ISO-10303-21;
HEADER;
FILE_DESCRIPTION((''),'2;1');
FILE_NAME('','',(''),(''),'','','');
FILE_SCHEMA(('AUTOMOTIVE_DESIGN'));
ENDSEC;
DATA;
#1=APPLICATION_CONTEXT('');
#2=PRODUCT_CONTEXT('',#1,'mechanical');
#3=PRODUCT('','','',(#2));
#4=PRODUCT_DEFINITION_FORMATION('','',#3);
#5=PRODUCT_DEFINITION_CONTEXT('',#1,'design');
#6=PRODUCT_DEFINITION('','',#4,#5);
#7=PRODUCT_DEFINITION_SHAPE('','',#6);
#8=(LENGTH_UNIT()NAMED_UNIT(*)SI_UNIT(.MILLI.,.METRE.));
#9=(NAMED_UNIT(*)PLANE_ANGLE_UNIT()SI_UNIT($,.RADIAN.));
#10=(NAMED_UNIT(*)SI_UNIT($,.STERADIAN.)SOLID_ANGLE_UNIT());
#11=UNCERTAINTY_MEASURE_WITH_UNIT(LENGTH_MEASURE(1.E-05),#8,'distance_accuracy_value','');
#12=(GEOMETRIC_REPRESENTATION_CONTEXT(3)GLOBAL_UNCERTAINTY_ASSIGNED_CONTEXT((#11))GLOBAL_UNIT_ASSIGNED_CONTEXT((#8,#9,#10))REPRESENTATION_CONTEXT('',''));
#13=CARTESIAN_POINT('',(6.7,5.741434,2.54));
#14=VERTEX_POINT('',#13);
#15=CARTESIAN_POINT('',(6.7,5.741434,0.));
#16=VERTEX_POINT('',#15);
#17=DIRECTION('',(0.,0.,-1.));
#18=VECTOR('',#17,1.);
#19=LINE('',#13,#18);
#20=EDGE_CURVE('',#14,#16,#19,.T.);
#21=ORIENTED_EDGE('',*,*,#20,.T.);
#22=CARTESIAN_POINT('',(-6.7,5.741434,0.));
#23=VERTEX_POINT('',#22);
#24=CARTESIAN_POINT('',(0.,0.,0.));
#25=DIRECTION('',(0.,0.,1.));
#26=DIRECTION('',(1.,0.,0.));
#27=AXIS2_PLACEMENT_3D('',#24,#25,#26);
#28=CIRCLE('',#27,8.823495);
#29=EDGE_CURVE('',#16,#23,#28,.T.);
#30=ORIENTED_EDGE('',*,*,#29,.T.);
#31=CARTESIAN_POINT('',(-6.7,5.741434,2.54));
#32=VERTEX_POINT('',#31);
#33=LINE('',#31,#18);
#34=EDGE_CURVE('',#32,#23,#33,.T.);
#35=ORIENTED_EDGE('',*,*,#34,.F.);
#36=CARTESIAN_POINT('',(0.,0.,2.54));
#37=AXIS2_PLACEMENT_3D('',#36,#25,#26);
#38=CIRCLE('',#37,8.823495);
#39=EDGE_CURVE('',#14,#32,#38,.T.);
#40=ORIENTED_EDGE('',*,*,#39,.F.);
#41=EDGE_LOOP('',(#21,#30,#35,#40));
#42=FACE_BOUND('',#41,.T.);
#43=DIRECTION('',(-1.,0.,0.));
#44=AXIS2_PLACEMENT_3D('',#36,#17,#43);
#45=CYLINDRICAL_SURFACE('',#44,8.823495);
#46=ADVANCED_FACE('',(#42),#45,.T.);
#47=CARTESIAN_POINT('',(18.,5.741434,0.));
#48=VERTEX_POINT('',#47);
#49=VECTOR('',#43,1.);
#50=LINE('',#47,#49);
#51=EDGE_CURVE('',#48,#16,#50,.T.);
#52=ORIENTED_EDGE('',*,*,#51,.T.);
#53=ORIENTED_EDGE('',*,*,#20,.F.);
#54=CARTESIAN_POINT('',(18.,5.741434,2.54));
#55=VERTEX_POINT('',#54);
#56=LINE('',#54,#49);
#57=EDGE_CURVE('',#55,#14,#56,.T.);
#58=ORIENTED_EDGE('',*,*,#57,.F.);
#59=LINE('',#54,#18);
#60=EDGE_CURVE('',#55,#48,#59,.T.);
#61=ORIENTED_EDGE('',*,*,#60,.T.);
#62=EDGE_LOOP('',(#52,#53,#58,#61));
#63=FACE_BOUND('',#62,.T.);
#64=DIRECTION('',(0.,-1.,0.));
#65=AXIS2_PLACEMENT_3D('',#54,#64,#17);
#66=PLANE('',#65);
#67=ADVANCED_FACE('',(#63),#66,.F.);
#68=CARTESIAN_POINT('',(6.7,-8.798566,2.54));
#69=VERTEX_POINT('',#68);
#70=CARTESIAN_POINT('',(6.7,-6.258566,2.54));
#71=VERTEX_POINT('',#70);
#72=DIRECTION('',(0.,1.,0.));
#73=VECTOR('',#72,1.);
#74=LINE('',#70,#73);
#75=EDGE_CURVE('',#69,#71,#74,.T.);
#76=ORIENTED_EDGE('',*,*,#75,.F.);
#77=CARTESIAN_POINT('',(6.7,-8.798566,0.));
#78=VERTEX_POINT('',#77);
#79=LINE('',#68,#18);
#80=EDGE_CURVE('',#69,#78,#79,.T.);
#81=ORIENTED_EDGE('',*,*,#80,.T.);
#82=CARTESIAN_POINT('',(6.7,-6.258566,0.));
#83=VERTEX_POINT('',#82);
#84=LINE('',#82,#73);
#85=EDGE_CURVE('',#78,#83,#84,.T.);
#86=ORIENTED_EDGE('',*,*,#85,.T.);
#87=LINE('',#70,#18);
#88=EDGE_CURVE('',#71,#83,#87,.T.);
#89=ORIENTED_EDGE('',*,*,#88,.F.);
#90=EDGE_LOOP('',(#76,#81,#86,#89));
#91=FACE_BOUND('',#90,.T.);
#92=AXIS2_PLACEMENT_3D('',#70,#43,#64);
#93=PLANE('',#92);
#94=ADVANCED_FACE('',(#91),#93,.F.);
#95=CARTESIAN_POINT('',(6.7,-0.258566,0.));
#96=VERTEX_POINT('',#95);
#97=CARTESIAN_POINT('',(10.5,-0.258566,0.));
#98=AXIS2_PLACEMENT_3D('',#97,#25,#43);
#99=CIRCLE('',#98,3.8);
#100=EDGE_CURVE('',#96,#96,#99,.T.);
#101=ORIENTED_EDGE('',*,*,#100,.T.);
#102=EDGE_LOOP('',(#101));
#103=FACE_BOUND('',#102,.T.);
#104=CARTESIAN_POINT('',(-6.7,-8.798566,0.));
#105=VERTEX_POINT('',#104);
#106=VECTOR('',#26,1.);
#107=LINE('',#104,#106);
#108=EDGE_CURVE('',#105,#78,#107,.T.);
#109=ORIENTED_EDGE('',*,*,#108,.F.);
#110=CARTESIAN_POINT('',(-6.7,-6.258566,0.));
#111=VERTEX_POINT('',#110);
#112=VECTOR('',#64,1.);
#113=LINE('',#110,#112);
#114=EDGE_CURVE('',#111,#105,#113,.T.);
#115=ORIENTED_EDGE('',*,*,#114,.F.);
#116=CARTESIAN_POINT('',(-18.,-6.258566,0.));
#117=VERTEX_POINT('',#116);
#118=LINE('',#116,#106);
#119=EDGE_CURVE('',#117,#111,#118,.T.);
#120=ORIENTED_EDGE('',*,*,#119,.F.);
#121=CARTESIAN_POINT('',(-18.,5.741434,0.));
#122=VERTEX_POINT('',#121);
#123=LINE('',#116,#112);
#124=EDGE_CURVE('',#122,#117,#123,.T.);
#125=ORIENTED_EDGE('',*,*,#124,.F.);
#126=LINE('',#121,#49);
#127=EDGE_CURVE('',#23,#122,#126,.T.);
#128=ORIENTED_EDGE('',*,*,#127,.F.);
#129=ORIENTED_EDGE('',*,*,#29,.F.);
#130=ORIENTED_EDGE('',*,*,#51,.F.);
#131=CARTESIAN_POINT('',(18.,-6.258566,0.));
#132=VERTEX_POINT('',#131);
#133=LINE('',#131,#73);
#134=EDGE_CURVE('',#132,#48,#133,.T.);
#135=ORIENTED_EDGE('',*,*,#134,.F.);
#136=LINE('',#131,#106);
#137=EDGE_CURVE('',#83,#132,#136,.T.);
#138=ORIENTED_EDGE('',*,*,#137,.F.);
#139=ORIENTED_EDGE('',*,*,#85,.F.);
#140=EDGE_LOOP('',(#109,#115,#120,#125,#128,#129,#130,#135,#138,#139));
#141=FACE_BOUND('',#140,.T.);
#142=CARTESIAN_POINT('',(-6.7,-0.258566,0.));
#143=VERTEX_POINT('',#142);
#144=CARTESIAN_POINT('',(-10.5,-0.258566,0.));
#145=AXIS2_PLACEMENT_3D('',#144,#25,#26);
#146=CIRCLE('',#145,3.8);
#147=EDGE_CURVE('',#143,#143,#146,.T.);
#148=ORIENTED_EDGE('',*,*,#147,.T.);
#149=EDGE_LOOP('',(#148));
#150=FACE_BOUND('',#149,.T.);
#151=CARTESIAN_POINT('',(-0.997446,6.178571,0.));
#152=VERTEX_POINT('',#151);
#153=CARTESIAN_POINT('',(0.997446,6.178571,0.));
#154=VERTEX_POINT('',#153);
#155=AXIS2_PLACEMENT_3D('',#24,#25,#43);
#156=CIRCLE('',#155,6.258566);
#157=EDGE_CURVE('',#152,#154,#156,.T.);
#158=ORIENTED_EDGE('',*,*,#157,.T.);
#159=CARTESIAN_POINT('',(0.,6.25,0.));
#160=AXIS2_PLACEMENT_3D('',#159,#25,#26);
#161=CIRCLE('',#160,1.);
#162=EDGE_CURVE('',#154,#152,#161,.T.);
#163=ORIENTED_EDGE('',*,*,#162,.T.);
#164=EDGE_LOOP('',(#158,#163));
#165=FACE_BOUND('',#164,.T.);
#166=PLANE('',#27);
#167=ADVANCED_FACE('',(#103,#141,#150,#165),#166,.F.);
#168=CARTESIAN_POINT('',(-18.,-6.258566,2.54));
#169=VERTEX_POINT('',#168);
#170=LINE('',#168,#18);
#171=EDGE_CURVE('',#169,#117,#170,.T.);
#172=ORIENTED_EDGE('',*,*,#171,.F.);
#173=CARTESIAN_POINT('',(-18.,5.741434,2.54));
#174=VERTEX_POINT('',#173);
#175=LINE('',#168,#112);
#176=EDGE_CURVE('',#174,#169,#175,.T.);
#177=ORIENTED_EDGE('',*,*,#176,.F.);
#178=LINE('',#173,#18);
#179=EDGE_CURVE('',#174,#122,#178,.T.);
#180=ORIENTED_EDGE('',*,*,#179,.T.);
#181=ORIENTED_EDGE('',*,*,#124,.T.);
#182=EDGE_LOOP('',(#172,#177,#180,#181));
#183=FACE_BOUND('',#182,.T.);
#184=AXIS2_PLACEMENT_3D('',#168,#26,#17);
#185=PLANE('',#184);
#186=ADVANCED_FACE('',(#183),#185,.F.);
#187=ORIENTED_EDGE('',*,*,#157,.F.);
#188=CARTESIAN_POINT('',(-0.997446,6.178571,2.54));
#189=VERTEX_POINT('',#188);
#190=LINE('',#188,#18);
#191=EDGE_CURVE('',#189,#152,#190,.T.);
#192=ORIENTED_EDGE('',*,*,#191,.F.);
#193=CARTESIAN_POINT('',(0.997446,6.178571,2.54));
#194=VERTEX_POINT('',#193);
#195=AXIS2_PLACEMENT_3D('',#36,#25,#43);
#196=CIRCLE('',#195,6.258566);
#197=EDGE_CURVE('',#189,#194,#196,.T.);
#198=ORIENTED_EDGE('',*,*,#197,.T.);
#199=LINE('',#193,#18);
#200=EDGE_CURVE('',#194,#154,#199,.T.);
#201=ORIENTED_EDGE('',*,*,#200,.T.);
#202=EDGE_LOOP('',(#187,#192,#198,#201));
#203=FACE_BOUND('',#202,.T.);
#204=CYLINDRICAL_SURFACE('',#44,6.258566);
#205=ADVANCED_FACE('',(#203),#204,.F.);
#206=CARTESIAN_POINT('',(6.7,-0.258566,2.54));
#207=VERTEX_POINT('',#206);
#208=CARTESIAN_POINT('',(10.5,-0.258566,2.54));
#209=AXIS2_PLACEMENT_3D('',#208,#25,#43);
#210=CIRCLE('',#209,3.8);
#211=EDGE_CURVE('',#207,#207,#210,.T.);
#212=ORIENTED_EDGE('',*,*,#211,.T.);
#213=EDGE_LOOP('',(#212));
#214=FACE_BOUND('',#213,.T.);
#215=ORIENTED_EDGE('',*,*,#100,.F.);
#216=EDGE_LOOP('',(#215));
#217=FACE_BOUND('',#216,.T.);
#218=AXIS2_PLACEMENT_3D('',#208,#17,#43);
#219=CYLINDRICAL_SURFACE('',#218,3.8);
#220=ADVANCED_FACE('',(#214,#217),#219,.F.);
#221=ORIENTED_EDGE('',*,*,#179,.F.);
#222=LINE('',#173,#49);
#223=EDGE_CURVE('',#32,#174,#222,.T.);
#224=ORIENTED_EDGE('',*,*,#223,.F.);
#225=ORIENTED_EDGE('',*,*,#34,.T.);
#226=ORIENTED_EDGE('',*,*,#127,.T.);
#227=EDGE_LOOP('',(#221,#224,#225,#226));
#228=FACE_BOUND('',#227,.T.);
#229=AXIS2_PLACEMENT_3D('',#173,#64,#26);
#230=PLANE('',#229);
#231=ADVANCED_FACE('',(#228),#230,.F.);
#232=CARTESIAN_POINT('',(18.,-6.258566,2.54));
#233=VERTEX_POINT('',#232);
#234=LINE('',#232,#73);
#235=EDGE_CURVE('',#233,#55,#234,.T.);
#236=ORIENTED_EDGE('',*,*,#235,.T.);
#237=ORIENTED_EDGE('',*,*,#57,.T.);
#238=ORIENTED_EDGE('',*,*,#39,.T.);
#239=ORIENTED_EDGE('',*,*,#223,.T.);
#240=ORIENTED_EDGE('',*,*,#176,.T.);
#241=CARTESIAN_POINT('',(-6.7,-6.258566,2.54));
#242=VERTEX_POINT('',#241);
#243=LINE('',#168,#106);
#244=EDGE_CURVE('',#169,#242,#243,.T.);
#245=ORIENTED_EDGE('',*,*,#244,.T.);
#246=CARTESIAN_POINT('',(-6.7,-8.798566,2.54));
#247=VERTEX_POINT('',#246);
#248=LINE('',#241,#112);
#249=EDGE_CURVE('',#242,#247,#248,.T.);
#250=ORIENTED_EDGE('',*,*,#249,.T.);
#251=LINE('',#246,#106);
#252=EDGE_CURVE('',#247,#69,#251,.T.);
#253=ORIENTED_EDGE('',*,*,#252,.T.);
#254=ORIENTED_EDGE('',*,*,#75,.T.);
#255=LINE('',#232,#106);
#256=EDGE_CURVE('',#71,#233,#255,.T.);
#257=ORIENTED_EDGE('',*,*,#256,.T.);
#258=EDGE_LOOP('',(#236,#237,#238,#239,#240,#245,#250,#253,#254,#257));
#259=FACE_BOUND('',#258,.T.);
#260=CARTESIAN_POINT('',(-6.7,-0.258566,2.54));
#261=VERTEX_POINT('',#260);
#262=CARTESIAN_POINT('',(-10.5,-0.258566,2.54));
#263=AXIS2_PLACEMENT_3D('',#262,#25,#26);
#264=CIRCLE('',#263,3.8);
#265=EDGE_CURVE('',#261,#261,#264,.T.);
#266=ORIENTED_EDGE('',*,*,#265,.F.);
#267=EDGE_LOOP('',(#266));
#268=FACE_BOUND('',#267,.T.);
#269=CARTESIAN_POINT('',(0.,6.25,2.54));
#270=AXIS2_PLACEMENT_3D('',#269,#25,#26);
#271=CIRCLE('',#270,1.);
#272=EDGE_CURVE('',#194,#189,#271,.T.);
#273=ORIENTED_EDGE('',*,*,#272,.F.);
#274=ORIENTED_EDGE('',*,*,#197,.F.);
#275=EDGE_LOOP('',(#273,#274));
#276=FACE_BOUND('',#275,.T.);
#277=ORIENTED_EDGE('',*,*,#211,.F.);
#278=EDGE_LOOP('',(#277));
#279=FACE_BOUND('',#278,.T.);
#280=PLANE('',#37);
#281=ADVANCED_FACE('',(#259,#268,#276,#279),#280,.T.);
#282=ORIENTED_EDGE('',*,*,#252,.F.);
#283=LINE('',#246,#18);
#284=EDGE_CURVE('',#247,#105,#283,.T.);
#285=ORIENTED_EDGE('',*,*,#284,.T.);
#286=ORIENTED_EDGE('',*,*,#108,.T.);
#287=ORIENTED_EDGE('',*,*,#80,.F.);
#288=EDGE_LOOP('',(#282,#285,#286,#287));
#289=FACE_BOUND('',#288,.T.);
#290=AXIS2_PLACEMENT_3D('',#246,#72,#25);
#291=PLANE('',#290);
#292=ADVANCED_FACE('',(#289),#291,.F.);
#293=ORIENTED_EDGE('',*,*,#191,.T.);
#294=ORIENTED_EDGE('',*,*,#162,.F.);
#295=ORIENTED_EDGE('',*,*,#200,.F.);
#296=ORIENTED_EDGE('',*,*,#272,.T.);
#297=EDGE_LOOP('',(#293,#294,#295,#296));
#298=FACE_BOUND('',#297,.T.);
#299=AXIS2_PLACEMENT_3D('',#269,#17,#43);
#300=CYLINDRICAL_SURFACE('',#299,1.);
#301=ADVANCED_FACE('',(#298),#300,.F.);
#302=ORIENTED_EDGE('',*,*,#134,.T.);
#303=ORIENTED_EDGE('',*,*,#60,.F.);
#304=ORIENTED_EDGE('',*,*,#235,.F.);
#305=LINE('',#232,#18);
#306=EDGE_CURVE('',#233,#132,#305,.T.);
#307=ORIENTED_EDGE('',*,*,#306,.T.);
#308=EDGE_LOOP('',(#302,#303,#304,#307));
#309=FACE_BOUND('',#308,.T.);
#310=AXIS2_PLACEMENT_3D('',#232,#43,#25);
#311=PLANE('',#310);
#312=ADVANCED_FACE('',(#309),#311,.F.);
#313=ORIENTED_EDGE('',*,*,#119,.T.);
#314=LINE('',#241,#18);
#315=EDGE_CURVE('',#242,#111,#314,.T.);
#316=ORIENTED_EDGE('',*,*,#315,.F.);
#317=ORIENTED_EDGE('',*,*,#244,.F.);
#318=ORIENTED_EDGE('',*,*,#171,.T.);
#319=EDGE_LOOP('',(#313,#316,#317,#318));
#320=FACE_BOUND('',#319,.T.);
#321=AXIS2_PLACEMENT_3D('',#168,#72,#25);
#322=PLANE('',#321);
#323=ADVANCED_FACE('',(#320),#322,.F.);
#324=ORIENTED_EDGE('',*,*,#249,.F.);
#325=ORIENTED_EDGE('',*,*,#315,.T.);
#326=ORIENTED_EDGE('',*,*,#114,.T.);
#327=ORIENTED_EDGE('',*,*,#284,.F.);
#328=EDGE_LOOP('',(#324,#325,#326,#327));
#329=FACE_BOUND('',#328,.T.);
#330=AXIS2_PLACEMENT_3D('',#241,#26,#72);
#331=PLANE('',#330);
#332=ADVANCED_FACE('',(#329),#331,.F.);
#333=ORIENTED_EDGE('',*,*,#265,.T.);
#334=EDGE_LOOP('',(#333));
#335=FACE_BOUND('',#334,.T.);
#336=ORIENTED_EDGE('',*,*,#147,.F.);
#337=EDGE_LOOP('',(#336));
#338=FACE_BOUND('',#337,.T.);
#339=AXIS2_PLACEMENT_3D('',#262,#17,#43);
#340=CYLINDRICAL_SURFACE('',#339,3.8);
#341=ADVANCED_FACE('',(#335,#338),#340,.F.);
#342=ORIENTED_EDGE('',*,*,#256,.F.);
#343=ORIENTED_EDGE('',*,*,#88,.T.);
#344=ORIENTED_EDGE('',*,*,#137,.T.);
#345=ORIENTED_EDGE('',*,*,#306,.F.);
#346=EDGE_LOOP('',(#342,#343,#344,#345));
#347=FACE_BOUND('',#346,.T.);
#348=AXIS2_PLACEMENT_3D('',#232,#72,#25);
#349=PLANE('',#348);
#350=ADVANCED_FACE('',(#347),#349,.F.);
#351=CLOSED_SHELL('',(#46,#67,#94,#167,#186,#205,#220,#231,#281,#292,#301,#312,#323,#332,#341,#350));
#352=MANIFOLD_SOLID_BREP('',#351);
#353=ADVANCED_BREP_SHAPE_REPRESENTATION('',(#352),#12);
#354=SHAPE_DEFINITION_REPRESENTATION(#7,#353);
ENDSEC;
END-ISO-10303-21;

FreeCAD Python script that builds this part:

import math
import FreeCAD as App
import Part
import Sketcher

V = App.Vector

doc = App.newDocument("Part")
params = doc.addObject("Spreadsheet::Sheet", "Params")
for row, (alias, value) in enumerate([
    ("sketch1_radius", "1 mm"),
    ("sketch1_diameter", "7.6 mm"),
    ("sketch1_height", "12 mm"),
    ("sketch1_width", "11.3 mm"),
    ("sketch1_width2", "13.4 mm"),
    ("pad1_length", "2.54 mm"),
], start=1):
    params.set(f"A{row}", alias)
    params.set(f"B{row}", "=" + value)
    params.setAlias(f"B{row}", alias)

body = doc.addObject("PartDesign::Body", "Body")

# Sketch on XY plane
sketch1 = doc.addObject("Sketcher::SketchObject", "Sketch")
body.addObject(sketch1)
sketch1.AttachmentSupport = (doc.XY_Plane, [""])
sketch1.MapMode = "FlatFace"
sketch1.addGeometry(Part.LineSegment(V(-18, 5.741434, 0), V(-18, -6.258566, 0)), False)
sketch1.addGeometry(Part.LineSegment(V(-18, -6.258566, 0), V(-6.7, -6.258566, 0)), False)
sketch1.addGeometry(Part.LineSegment(V(-6.7, -6.258566, 0), V(-6.7, -8.798566, 0)), False)
sketch1.addGeometry(Part.LineSegment(V(-6.7, -8.798566, 0), V(6.7, -8.798566, 0)), False)
sketch1.addGeometry(Part.LineSegment(V(6.7, -8.798566, 0), V(6.7, -6.258566, 0)), False)
sketch1.addGeometry(Part.LineSegment(V(6.7, -6.258566, 0), V(18, -6.258566, 0)), False)
sketch1.addGeometry(Part.LineSegment(V(18, -6.258566, 0), V(18, 5.741434, 0)), False)
sketch1.addGeometry(Part.LineSegment(V(18, 5.741434, 0), V(6.7, 5.741434, 0)), False)
sketch1.addGeometry(Part.ArcOfCircle(Part.Circle(V(0, 0, 0), V(0, 0, 1), 8.823495), math.radians(40.59428), math.radians(139.40572)), False)
sketch1.addGeometry(Part.LineSegment(V(-6.7, 5.741434, 0), V(-18, 5.741434, 0)), False)
sketch1.addGeometry(Part.Circle(V(10.5, -0.258566, 0), V(0, 0, 1), 3.8), False)
sketch1.addGeometry(Part.Circle(V(-10.5, -0.258566, 0), V(0, 0, 1), 3.8), False)
sketch1.addGeometry(Part.ArcOfCircle(Part.Circle(V(0, 0, 0), V(0, 0, 1), 6.258566), math.radians(99.170499), math.radians(440.829501)), False)
sketch1.addGeometry(Part.ArcOfCircle(Part.Circle(V(0, 6.25, 0), V(0, 0, 1), 1), math.radians(-4.096044), math.radians(184.096044)), False)
sketch1.addConstraint(Sketcher.Constraint("Coincident", 0, 2, 1, 1))
sketch1.addConstraint(Sketcher.Constraint("Coincident", 1, 2, 2, 1))
sketch1.addConstraint(Sketcher.Constraint("Coincident", 2, 2, 3, 1))
sketch1.addConstraint(Sketcher.Constraint("Coincident", 3, 2, 4, 1))
sketch1.addConstraint(Sketcher.Constraint("Coincident", 4, 2, 5, 1))
sketch1.addConstraint(Sketcher.Constraint("Coincident", 5, 2, 6, 1))
sketch1.addConstraint(Sketcher.Constraint("Coincident", 6, 2, 7, 1))
sketch1.addConstraint(Sketcher.Constraint("Coincident", 7, 2, 8, 1))
sketch1.addConstraint(Sketcher.Constraint("Coincident", 8, 2, 9, 1))
sketch1.addConstraint(Sketcher.Constraint("Coincident", 9, 2, 0, 1))
sketch1.addConstraint(Sketcher.Constraint("Coincident", 12, 1, 13, 2))
sketch1.addConstraint(Sketcher.Constraint("Coincident", 13, 1, 12, 2))
sketch1.addConstraint(Sketcher.Constraint("Vertical", 0))
sketch1.addConstraint(Sketcher.Constraint("Horizontal", 1))
sketch1.addConstraint(Sketcher.Constraint("Vertical", 2))
sketch1.addConstraint(Sketcher.Constraint("Horizontal", 3))
sketch1.addConstraint(Sketcher.Constraint("Vertical", 4))
sketch1.addConstraint(Sketcher.Constraint("Horizontal", 5))
sketch1.addConstraint(Sketcher.Constraint("Vertical", 6))
sketch1.addConstraint(Sketcher.Constraint("Horizontal", 7))
sketch1.addConstraint(Sketcher.Constraint("Horizontal", 9))
sketch1.addConstraint(Sketcher.Constraint("Coincident", 8, 3, -1, 1))
sketch1.addConstraint(Sketcher.Constraint("Coincident", 12, 3, -1, 1))
sketch1.addConstraint(Sketcher.Constraint("Equal", 10, 11))
sketch1.addConstraint(Sketcher.Constraint("Symmetric", 10, 3, 11, 3, -2))
sketch1.addConstraint(Sketcher.Constraint("Symmetric", 1, 2, 4, 2, -2))
sketch1.addConstraint(Sketcher.Constraint("Symmetric", 6, 2, 9, 2, -2))
sketch1.addConstraint(Sketcher.Constraint("PointOnObject", 13, 3, -2))
sketch1.addConstraint(Sketcher.Constraint("Vertical", 4, 2, 7, 2))
sketch1.addConstraint(Sketcher.Constraint("Radius", 13, 1.0))
sketch1.addConstraint(Sketcher.Constraint("Diameter", 10, 7.6))
sketch1.addConstraint(Sketcher.Constraint("DistanceY", 0, 2, 0, 1, 12.0))
sketch1.addConstraint(Sketcher.Constraint("DistanceX", 1, 1, 1, 2, 11.3))
sketch1.addConstraint(Sketcher.Constraint("DistanceX", 3, 1, 3, 2, 13.4))
sketch1.addConstraint(Sketcher.Constraint("DistanceX", 11, 3, 10, 3, 21.0))
sketch1.addConstraint(Sketcher.Constraint("DistanceY", 0, 2, 11, 3, 6.0))
sketch1.addConstraint(Sketcher.Constraint("DistanceY", 2, 2, 2, 1, 2.54))
sketch1.addConstraint(Sketcher.Constraint("DistanceY", -1, 1, 13, 3, 6.25))
sketch1.addConstraint(Sketcher.Constraint("Radius", 8, 8.823495))
sketch1.addConstraint(Sketcher.Constraint("Radius", 12, 6.258566))
sketch1.setExpression("Constraints[29]", "Params.sketch1_radius")
sketch1.setExpression("Constraints[30]", "Params.sketch1_diameter")
sketch1.setExpression("Constraints[31]", "Params.sketch1_height")
sketch1.setExpression("Constraints[32]", "Params.sketch1_width")
sketch1.setExpression("Constraints[33]", "Params.sketch1_width2")
pad1 = doc.addObject("PartDesign::Pad", "Pad")
body.addObject(pad1)
pad1.Profile = sketch1
pad1.setExpression("Length", "Params.pad1_length")

doc.recompute()
